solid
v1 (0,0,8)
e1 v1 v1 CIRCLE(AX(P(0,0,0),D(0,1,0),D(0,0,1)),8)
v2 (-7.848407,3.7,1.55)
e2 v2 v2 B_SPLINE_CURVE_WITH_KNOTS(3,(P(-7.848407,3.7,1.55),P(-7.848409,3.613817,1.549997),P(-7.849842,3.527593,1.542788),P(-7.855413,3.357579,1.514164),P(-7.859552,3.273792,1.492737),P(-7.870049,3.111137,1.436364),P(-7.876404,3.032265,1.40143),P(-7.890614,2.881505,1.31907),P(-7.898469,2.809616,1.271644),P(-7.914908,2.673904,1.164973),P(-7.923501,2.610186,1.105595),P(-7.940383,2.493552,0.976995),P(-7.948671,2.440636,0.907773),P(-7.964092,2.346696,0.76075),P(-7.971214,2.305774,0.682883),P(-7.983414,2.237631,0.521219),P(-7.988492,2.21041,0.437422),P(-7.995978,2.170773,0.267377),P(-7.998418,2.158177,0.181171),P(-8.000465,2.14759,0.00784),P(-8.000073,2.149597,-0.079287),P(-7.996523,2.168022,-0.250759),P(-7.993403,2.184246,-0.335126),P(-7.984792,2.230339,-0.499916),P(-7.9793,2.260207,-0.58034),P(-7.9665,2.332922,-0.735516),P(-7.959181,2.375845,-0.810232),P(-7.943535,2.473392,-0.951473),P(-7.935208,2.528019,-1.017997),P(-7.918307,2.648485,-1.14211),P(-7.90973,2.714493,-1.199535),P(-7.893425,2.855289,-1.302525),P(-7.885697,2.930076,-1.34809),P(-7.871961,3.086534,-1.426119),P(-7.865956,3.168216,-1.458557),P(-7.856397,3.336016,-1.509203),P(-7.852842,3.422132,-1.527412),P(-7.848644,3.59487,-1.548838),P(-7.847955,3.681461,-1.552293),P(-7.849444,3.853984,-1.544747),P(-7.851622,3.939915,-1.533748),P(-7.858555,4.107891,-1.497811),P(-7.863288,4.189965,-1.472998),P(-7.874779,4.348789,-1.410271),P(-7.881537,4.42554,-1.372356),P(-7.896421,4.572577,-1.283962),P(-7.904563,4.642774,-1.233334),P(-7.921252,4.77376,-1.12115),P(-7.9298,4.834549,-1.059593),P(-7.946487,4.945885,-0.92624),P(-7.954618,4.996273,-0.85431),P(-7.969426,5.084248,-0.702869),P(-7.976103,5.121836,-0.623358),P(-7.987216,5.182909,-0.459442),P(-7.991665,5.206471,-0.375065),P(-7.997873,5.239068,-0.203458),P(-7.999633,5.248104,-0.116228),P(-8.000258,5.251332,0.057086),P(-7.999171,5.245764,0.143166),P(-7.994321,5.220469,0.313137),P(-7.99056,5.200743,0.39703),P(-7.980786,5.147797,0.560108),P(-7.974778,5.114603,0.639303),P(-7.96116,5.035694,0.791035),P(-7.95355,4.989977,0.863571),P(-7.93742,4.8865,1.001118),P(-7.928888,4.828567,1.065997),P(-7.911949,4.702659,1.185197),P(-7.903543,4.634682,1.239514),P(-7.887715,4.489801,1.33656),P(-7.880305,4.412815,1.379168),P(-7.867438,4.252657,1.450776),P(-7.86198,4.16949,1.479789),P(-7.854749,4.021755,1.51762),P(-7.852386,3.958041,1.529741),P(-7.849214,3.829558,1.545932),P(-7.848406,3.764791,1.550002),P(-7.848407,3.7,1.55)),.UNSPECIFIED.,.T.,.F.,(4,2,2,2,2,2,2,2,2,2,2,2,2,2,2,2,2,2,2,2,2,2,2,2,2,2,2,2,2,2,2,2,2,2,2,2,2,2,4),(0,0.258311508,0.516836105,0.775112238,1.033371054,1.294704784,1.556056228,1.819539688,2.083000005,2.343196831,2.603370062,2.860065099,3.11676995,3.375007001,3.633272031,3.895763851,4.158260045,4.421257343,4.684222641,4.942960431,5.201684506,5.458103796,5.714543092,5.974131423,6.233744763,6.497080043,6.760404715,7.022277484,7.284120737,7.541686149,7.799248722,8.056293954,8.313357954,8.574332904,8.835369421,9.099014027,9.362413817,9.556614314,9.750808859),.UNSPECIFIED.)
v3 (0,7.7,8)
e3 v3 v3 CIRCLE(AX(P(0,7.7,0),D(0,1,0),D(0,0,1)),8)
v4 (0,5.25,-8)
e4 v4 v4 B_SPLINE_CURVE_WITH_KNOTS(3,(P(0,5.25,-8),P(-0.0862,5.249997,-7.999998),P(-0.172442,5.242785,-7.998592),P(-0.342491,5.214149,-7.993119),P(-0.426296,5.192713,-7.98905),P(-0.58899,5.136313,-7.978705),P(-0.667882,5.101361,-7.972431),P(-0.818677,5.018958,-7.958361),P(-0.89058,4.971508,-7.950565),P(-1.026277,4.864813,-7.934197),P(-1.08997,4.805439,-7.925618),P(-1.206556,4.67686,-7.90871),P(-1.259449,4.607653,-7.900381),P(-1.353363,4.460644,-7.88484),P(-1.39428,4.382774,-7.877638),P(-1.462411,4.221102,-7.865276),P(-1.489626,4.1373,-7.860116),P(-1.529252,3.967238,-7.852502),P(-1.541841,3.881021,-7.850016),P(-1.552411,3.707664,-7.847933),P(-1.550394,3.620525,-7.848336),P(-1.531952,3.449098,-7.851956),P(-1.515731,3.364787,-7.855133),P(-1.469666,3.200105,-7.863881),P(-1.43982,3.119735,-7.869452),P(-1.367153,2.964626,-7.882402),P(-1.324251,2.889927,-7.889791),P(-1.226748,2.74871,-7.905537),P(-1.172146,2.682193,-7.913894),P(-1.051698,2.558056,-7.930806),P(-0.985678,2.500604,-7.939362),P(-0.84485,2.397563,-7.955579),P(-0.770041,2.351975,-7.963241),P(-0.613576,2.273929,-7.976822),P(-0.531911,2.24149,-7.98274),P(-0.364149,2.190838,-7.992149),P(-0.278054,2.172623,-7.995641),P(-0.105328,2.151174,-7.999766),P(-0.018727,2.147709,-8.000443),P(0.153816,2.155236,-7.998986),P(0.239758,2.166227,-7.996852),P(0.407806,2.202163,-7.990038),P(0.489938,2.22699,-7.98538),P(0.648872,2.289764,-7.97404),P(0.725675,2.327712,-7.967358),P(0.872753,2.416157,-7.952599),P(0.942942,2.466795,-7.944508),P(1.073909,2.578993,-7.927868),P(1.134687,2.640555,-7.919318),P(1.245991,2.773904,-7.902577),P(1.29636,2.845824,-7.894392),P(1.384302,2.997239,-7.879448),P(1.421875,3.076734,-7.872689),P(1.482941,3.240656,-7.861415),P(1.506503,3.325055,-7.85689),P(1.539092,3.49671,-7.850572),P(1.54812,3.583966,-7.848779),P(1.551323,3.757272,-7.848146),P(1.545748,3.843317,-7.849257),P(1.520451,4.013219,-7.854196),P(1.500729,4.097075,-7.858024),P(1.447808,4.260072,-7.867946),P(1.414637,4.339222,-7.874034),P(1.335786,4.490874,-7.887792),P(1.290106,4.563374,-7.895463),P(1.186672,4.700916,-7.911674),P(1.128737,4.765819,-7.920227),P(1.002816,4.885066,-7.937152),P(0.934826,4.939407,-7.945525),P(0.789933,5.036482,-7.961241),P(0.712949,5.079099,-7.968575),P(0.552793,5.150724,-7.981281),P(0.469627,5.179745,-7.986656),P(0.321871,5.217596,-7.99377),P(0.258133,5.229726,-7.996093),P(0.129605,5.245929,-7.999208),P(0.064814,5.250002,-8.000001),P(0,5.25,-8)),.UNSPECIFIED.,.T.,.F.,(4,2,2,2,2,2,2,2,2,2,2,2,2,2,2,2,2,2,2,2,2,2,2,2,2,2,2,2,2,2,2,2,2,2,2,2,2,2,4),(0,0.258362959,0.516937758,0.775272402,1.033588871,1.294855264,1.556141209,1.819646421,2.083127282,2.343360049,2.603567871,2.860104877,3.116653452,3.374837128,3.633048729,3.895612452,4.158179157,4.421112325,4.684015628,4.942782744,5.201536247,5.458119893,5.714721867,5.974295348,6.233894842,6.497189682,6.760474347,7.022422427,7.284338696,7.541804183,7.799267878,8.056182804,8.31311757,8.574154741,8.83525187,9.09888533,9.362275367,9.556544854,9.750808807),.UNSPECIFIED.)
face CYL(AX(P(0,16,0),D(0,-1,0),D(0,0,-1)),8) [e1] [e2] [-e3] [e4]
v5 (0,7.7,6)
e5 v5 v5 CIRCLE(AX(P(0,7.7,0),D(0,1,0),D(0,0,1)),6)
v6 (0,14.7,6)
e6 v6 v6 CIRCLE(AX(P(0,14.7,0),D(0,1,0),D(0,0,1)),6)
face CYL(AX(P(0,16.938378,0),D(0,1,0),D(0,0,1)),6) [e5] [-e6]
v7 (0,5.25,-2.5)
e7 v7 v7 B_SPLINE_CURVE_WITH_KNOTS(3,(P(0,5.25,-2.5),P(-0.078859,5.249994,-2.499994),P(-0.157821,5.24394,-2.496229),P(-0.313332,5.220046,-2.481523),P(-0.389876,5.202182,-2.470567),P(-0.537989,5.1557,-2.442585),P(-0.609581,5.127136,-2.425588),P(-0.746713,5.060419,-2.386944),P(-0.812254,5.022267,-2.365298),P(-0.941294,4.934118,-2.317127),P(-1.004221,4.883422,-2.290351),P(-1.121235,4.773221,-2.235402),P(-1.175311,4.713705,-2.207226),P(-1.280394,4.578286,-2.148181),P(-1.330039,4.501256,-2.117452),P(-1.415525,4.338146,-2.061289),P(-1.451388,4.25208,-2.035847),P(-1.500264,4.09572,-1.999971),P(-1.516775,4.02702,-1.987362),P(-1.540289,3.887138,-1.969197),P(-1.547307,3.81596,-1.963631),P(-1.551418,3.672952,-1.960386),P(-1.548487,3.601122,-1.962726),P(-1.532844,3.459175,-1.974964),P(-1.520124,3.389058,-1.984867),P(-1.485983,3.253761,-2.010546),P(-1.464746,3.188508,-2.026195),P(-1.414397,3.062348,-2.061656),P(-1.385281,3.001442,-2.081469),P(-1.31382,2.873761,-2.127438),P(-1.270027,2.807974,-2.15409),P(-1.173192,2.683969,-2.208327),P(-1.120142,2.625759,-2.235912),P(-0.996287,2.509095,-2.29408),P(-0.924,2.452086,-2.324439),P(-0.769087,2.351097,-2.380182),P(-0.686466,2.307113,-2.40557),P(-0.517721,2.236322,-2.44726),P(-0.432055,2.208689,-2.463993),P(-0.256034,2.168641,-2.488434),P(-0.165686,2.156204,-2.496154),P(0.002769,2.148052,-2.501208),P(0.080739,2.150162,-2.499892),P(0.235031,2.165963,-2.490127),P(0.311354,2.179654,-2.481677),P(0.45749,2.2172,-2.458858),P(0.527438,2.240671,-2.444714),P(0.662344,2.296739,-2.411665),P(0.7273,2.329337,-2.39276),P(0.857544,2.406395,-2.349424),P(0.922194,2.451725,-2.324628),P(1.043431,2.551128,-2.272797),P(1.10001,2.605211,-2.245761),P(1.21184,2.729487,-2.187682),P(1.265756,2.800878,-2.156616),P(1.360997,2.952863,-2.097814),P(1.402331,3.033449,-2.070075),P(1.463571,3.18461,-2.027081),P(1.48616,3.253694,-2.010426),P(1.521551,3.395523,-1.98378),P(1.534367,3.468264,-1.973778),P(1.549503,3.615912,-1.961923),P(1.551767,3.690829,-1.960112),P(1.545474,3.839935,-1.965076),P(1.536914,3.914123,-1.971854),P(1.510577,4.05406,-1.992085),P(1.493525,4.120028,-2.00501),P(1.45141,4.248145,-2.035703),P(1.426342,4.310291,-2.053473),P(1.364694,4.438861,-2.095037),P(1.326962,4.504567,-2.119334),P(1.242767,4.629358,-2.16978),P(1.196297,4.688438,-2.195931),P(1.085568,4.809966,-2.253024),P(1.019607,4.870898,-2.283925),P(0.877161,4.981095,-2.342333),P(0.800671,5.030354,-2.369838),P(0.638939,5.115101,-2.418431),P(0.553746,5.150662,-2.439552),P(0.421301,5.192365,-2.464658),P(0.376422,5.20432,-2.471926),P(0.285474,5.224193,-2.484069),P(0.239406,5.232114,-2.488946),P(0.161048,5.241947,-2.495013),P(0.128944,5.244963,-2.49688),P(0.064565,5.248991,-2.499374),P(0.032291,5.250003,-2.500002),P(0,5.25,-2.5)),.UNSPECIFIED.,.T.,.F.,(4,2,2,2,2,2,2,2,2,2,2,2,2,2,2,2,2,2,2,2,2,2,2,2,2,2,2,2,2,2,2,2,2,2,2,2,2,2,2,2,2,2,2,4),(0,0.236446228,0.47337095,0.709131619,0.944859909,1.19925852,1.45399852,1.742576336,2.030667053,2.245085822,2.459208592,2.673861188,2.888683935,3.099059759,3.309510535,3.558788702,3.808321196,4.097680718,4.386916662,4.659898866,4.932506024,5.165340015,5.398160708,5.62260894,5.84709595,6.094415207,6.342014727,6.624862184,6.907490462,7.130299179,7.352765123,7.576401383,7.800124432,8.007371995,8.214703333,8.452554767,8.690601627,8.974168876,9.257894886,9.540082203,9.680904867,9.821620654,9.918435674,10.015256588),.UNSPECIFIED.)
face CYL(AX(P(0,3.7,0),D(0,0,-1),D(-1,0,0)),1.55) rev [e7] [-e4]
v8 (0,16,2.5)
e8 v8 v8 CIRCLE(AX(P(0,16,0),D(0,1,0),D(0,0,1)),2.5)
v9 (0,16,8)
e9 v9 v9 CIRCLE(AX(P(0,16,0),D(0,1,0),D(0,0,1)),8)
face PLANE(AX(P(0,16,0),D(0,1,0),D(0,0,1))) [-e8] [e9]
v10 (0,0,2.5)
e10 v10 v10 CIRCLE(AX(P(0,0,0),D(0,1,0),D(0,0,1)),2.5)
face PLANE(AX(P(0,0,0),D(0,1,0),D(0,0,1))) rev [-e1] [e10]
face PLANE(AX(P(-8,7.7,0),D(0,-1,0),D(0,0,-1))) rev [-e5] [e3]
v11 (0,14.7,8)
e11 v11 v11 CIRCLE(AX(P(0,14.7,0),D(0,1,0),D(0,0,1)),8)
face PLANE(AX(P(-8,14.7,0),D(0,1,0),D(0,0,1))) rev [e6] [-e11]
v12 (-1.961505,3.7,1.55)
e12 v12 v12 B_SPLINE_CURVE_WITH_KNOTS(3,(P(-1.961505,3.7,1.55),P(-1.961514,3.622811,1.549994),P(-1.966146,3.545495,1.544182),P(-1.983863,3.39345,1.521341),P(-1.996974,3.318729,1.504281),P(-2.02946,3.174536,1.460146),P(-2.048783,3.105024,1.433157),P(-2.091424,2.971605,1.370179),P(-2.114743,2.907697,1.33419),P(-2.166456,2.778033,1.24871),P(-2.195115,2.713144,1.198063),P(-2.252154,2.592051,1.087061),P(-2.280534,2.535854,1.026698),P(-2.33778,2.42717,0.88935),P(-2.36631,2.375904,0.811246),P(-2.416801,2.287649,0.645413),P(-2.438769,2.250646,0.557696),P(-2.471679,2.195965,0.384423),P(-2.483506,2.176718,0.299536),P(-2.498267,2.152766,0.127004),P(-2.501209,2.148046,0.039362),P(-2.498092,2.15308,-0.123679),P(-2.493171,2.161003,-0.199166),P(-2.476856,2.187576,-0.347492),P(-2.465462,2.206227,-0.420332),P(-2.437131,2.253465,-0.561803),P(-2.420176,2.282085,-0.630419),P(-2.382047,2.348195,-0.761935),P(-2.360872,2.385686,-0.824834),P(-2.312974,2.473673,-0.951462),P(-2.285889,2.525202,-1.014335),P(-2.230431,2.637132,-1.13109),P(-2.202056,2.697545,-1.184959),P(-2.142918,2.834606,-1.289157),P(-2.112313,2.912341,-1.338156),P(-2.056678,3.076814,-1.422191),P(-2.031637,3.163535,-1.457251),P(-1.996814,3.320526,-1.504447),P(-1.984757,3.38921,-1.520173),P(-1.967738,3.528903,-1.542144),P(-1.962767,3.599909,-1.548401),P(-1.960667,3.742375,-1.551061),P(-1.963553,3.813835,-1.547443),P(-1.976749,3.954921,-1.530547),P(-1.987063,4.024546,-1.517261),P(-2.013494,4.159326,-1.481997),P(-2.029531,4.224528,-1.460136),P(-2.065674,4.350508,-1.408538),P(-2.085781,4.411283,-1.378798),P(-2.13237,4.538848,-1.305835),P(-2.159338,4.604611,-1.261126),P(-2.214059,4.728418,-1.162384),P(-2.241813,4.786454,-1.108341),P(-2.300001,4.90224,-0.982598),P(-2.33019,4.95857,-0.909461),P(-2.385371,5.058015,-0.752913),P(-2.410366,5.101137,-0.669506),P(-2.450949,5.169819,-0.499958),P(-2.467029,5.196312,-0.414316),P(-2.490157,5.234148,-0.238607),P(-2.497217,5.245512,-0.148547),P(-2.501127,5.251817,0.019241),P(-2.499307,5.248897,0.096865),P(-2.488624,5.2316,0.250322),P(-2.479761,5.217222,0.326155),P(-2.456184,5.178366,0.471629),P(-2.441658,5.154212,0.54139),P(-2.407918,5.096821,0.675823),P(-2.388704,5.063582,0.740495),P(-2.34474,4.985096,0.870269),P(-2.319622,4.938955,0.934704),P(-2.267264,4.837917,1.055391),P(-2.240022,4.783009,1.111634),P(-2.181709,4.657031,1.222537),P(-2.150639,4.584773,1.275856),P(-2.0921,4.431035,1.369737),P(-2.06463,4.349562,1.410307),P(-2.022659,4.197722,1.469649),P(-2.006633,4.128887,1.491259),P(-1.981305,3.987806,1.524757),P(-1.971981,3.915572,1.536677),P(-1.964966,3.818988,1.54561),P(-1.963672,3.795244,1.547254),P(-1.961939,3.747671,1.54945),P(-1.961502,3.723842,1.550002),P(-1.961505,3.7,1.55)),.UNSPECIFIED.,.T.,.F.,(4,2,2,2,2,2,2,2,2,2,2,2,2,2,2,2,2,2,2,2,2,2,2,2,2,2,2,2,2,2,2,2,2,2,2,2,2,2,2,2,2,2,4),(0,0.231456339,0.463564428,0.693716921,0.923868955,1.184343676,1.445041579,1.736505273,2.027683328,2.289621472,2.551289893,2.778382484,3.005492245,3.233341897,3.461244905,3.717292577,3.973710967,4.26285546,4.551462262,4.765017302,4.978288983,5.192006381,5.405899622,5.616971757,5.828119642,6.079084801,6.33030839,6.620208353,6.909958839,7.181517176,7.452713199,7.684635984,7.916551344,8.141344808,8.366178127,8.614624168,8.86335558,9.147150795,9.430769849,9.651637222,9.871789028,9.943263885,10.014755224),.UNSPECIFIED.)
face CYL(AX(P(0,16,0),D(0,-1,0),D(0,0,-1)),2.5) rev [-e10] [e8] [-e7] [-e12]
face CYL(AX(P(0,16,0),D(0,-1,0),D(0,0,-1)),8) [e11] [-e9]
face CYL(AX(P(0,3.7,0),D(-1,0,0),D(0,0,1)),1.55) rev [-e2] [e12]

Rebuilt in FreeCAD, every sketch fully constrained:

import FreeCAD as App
import Part
import Sketcher

doc = App.newDocument("Part")
body = doc.addObject("PartDesign::Body", "Body")

sketch1 = body.newObject("Sketcher::SketchObject", "Sketch")
sketch1.AttachmentSupport = (doc.getObject("XZ_Plane"), [""])
sketch1.MapMode = "FlatFace"
sketch1.addGeometry([
    Part.Circle(App.Vector(0, 0, 0), App.Vector(0, 0, 1), 8),
    Part.Circle(App.Vector(0, 0, 0), App.Vector(0, 0, 1), 2.5),
], False)
sketch1.addConstraint([
    Sketcher.Constraint("Coincident", 0, 3, -1, 1),
    Sketcher.Constraint("Coincident", 1, 3, -1, 1),
    Sketcher.Constraint("Diameter", 0, 16.0),
    Sketcher.Constraint("Diameter", 1, 5.0),
])
pad1 = body.newObject("PartDesign::Pad", "Pad")
pad1.Profile = sketch1
pad1.Length = 16
pad1.Reversed = True

sketch2 = body.newObject("Sketcher::SketchObject", "Sketch001")
sketch2.AttachmentSupport = (doc.getObject("XY_Plane"), [""])
sketch2.MapMode = "FlatFace"
sketch2.addGeometry([
    Part.LineSegment(App.Vector(-8, 14.7, 0), App.Vector(-8, 7.7, 0)),
    Part.LineSegment(App.Vector(-8, 7.7, 0), App.Vector(-6, 7.7, 0)),
    Part.LineSegment(App.Vector(-6, 7.7, 0), App.Vector(-6, 14.7, 0)),
    Part.LineSegment(App.Vector(-6, 14.7, 0), App.Vector(-8, 14.7, 0)),
], False)
sketch2.addConstraint([
    Sketcher.Constraint("Coincident", 0, 2, 1, 1),
    Sketcher.Constraint("Coincident", 1, 2, 2, 1),
    Sketcher.Constraint("Coincident", 2, 2, 3, 1),
    Sketcher.Constraint("Coincident", 3, 2, 0, 1),
    Sketcher.Constraint("Vertical", 0),
    Sketcher.Constraint("Horizontal", 1),
    Sketcher.Constraint("Vertical", 2),
    Sketcher.Constraint("Horizontal", 3),
    Sketcher.Constraint("DistanceX", 1, 1, 1, 2, 2.0),
    Sketcher.Constraint("DistanceY", 0, 2, 0, 1, 7.0),
    Sketcher.Constraint("DistanceX", 0, 2, -1, 1, 8.0),
    Sketcher.Constraint("DistanceY", -1, 1, 0, 2, 7.7),
])
groove = body.newObject("PartDesign::Groove", "Groove")
groove.Profile = sketch2
groove.ReferenceAxis = (sketch2, ["V_Axis"])
groove.Angle = 360

sketch3 = body.newObject("Sketcher::SketchObject", "Sketch002")
sketch3.AttachmentSupport = (doc.getObject("YZ_Plane"), [""])
sketch3.MapMode = "FlatFace"
sketch3.AttachmentOffset = App.Placement(App.Vector(0, 0, -8), App.Rotation())
sketch3.addGeometry(Part.Circle(App.Vector(3.7, 0, 0), App.Vector(0, 0, 1), 1.6), False)
sketch3.addConstraint([
    Sketcher.Constraint("PointOnObject", 0, 3, -1),
    Sketcher.Constraint("Diameter", 0, 3.1),
    Sketcher.Constraint("DistanceX", -1, 1, 0, 3, 3.7),
])
pocket1 = body.newObject("PartDesign::Pocket", "Pocket")
pocket1.Profile = sketch3
pocket1.Length = 8
pocket1.Reversed = True
doc.recompute()

polarpattern = body.newObject("PartDesign::PolarPattern", "PolarPattern")
polarpattern.Originals = [pocket1]
polarpattern.Axis = (doc.getObject("Y_Axis"), [""])
polarpattern.Angle = 90
polarpattern.Occurrences = 2
polarpattern.Reversed = True
body.Tip = polarpattern

doc.recompute()
